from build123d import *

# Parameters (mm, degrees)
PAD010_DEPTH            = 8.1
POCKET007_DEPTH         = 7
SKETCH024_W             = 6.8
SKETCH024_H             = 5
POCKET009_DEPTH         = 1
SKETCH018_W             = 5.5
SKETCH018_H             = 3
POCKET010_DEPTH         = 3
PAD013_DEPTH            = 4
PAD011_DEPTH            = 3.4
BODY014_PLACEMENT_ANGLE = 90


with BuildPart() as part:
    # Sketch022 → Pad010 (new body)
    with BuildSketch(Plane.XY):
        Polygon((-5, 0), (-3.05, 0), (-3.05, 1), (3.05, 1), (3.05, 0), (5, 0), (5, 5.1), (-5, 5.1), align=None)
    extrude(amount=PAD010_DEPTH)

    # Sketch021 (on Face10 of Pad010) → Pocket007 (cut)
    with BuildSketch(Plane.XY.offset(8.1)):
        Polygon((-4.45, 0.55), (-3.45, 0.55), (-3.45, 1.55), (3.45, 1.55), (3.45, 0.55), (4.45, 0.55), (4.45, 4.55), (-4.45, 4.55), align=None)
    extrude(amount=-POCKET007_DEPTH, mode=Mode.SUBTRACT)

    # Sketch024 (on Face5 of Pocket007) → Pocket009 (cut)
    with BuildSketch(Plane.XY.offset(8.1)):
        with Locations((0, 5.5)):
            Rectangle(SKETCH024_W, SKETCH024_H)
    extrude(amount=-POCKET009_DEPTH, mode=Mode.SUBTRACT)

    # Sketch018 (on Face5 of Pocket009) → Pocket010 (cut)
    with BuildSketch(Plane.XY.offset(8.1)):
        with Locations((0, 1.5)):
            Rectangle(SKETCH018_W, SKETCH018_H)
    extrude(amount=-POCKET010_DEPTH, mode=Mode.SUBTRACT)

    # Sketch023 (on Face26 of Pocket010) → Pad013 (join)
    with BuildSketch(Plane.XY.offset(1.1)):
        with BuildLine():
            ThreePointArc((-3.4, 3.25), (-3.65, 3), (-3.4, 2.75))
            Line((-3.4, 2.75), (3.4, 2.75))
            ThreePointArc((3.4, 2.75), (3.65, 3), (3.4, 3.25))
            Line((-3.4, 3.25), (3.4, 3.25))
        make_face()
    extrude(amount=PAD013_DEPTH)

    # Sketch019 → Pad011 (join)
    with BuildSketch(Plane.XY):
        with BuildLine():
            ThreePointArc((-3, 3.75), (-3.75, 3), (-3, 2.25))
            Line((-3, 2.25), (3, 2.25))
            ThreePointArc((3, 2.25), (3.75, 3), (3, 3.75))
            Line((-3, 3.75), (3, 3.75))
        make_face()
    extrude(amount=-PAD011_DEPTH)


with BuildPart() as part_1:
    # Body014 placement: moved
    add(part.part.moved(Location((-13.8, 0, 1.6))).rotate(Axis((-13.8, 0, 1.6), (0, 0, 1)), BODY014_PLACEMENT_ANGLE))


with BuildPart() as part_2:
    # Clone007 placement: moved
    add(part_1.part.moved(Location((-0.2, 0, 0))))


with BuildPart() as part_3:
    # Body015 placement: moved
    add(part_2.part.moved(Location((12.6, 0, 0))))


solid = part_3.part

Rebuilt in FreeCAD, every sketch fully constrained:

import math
import FreeCAD as App
import Part
import Sketcher

doc = App.newDocument("Part")
body = doc.addObject("PartDesign::Body", "Body")

# Sketch on XY plane
sketch1 = body.newObject("Sketcher::SketchObject", "Sketch")
sketch1.AttachmentSupport = (doc.getObject("XY_Plane"), [""])
sketch1.MapMode = "FlatFace"
sketch1.addGeometry(Part.LineSegment(App.Vector(-5, 0, 0), App.Vector(-3.05, 0, 0)), False)
sketch1.addGeometry(Part.LineSegment(App.Vector(-3.05, 0, 0), App.Vector(-3.05, 1, 0)), False)
sketch1.addGeometry(Part.LineSegment(App.Vector(-3.05, 1, 0), App.Vector(3.05, 1, 0)), False)
sketch1.addGeometry(Part.LineSegment(App.Vector(3.05, 1, 0), App.Vector(3.05, 0, 0)), False)
sketch1.addGeometry(Part.LineSegment(App.Vector(3.05, 0, 0), App.Vector(5, 0, 0)), False)
sketch1.addGeometry(Part.LineSegment(App.Vector(5, 0, 0), App.Vector(5, 5.1, 0)), False)
sketch1.addGeometry(Part.LineSegment(App.Vector(5, 5.1, 0), App.Vector(-5, 5.1, 0)), False)
sketch1.addGeometry(Part.LineSegment(App.Vector(-5, 5.1, 0), App.Vector(-5, 0, 0)), False)
sketch1.addConstraint(Sketcher.Constraint("Coincident", 0, 2, 1, 1))
sketch1.addConstraint(Sketcher.Constraint("Coincident", 1, 2, 2, 1))
sketch1.addConstraint(Sketcher.Constraint("Coincident", 2, 2, 3, 1))
sketch1.addConstraint(Sketcher.Constraint("Coincident", 3, 2, 4, 1))
sketch1.addConstraint(Sketcher.Constraint("Coincident", 4, 2, 5, 1))
sketch1.addConstraint(Sketcher.Constraint("Coincident", 5, 2, 6, 1))
sketch1.addConstraint(Sketcher.Constraint("Coincident", 6, 2, 7, 1))
sketch1.addConstraint(Sketcher.Constraint("Coincident", 7, 2, 0, 1))
sketch1.addConstraint(Sketcher.Constraint("Horizontal", 0))
sketch1.addConstraint(Sketcher.Constraint("Vertical", 1))
sketch1.addConstraint(Sketcher.Constraint("Horizontal", 2))
sketch1.addConstraint(Sketcher.Constraint("Vertical", 3))
sketch1.addConstraint(Sketcher.Constraint("Horizontal", 4))
sketch1.addConstraint(Sketcher.Constraint("Vertical", 5))
sketch1.addConstraint(Sketcher.Constraint("Horizontal", 6))
sketch1.addConstraint(Sketcher.Constraint("Vertical", 7))
sketch1.addConstraint(Sketcher.Constraint("Symmetric", 0, 2, 3, 2, -1, 1))
sketch1.addConstraint(Sketcher.Constraint("Symmetric", 4, 2, 7, 2, -2))
sketch1.addConstraint(Sketcher.Constraint("DistanceX", 6, 2, 6, 1, 10.0))
sketch1.addConstraint(Sketcher.Constraint("DistanceY", 1, 1, 1, 2, 1.0))
sketch1.addConstraint(Sketcher.Constraint("DistanceX", 2, 1, 2, 2, 6.1))
sketch1.addConstraint(Sketcher.Constraint("DistanceY", 5, 1, 5, 2, 5.1))
pad1 = body.newObject("PartDesign::Pad", "Pad")
pad1.Profile = sketch1
pad1.Length = 8.1

# Sketch on XY plane
sketch2 = body.newObject("Sketcher::SketchObject", "Sketch001")
sketch2.AttachmentSupport = (doc.getObject("XY_Plane"), [""])
sketch2.MapMode = "FlatFace"
sketch2.AttachmentOffset = App.Placement(App.Vector(0, 0, 8.1), App.Rotation())
sketch2.addGeometry(Part.LineSegment(App.Vector(-4.45, 0.55, 0), App.Vector(-3.45, 0.55, 0)), False)
sketch2.addGeometry(Part.LineSegment(App.Vector(-3.45, 0.55, 0), App.Vector(-3.45, 1.55, 0)), False)
sketch2.addGeometry(Part.LineSegment(App.Vector(-3.45, 1.55, 0), App.Vector(3.45, 1.55, 0)), False)
sketch2.addGeometry(Part.LineSegment(App.Vector(3.45, 1.55, 0), App.Vector(3.45, 0.55, 0)), False)
sketch2.addGeometry(Part.LineSegment(App.Vector(3.45, 0.55, 0), App.Vector(4.45, 0.55, 0)), False)
sketch2.addGeometry(Part.LineSegment(App.Vector(4.45, 0.55, 0), App.Vector(4.45, 4.55, 0)), False)
sketch2.addGeometry(Part.LineSegment(App.Vector(4.45, 4.55, 0), App.Vector(-4.45, 4.55, 0)), False)
sketch2.addGeometry(Part.LineSegment(App.Vector(-4.45, 4.55, 0), App.Vector(-4.45, 0.55, 0)), False)
sketch2.addConstraint(Sketcher.Constraint("Coincident", 0, 2, 1, 1))
sketch2.addConstraint(Sketcher.Constraint("Coincident", 1, 2, 2, 1))
sketch2.addConstraint(Sketcher.Constraint("Coincident", 2, 2, 3, 1))
sketch2.addConstraint(Sketcher.Constraint("Coincident", 3, 2, 4, 1))
sketch2.addConstraint(Sketcher.Constraint("Coincident", 4, 2, 5, 1))
sketch2.addConstraint(Sketcher.Constraint("Coincident", 5, 2, 6, 1))
sketch2.addConstraint(Sketcher.Constraint("Coincident", 6, 2, 7, 1))
sketch2.addConstraint(Sketcher.Constraint("Coincident", 7, 2, 0, 1))
sketch2.addConstraint(Sketcher.Constraint("Horizontal", 0))
sketch2.addConstraint(Sketcher.Constraint("Vertical", 1))
sketch2.addConstraint(Sketcher.Constraint("Horizontal", 2))
sketch2.addConstraint(Sketcher.Constraint("Vertical", 3))
sketch2.addConstraint(Sketcher.Constraint("Horizontal", 4))
sketch2.addConstraint(Sketcher.Constraint("Vertical", 5))
sketch2.addConstraint(Sketcher.Constraint("Horizontal", 6))
sketch2.addConstraint(Sketcher.Constraint("Vertical", 7))
sketch2.addConstraint(Sketcher.Constraint("Symmetric", 0, 2, 3, 2, -2))
sketch2.addConstraint(Sketcher.Constraint("Equal", 0, 4))
sketch2.addConstraint(Sketcher.Constraint("Equal", 4, 1))
sketch2.addConstraint(Sketcher.Constraint("DistanceX", 0, 1, 0, 2, 1.0))
sketch2.addConstraint(Sketcher.Constraint("DistanceY", 5, 1, 5, 2, 4.0))
sketch2.addConstraint(Sketcher.Constraint("DistanceX", 2, 1, 2, 2, 6.9))
sketch2.addConstraint(Sketcher.Constraint("DistanceY", -1, 1, 0, 2, 0.55))
pocket1 = body.newObject("PartDesign::Pocket", "Pocket")
pocket1.Profile = sketch2
pocket1.Length = 7

# Sketch on XY plane
sketch3 = body.newObject("Sketcher::SketchObject", "Sketch002")
sketch3.AttachmentSupport = (doc.getObject("XY_Plane"), [""])
sketch3.MapMode = "FlatFace"
sketch3.AttachmentOffset = App.Placement(App.Vector(0, 0, 8.1), App.Rotation())
sketch3.addGeometry(Part.LineSegment(App.Vector(-3.4, 8, 0), App.Vector(-3.4, 3, 0)), False)
sketch3.addGeometry(Part.LineSegment(App.Vector(-3.4, 3, 0), App.Vector(3.4, 3, 0)), False)
sketch3.addGeometry(Part.LineSegment(App.Vector(3.4, 3, 0), App.Vector(3.4, 8, 0)), False)
sketch3.addGeometry(Part.LineSegment(App.Vector(3.4, 8, 0), App.Vector(-3.4, 8, 0)), False)
sketch3.addConstraint(Sketcher.Constraint("Coincident", 0, 2, 1, 1))
sketch3.addConstraint(Sketcher.Constraint("Coincident", 1, 2, 2, 1))
sketch3.addConstraint(Sketcher.Constraint("Coincident", 2, 2, 3, 1))
sketch3.addConstraint(Sketcher.Constraint("Coincident", 3, 2, 0, 1))
sketch3.addConstraint(Sketcher.Constraint("Vertical", 0))
sketch3.addConstraint(Sketcher.Constraint("Horizontal", 1))
sketch3.addConstraint(Sketcher.Constraint("Vertical", 2))
sketch3.addConstraint(Sketcher.Constraint("Horizontal", 3))
sketch3.addConstraint(Sketcher.Constraint("DistanceY", 0, 2, 0, 1, 5.0))
sketch3.addConstraint(Sketcher.Constraint("DistanceX", 1, 1, 1, 2, 6.8))
sketch3.addConstraint(Sketcher.Constraint("DistanceY", -1, 1, 0, 2, 3.0))
sketch3.addConstraint(Sketcher.Constraint("DistanceX", 0, 2, -1, 1, 3.4))
pocket2 = body.newObject("PartDesign::Pocket", "Pocket001")
pocket2.Profile = sketch3
pocket2.Length = 1

# Sketch on XY plane
sketch4 = body.newObject("Sketcher::SketchObject", "Sketch003")
sketch4.AttachmentSupport = (doc.getObject("XY_Plane"), [""])
sketch4.MapMode = "FlatFace"
sketch4.AttachmentOffset = App.Placement(App.Vector(0, 0, 8.1), App.Rotation())
sketch4.addGeometry(Part.LineSegment(App.Vector(-2.75, 3, 0), App.Vector(-2.75, 0, 0)), False)
sketch4.addGeometry(Part.LineSegment(App.Vector(-2.75, 0, 0), App.Vector(2.75, 0, 0)), False)
sketch4.addGeometry(Part.LineSegment(App.Vector(2.75, 0, 0), App.Vector(2.75, 3, 0)), False)
sketch4.addGeometry(Part.LineSegment(App.Vector(2.75, 3, 0), App.Vector(-2.75, 3, 0)), False)
sketch4.addConstraint(Sketcher.Constraint("Coincident", 0, 2, 1, 1))
sketch4.addConstraint(Sketcher.Constraint("Coincident", 1, 2, 2, 1))
sketch4.addConstraint(Sketcher.Constraint("Coincident", 2, 2, 3, 1))
sketch4.addConstraint(Sketcher.Constraint("Coincident", 3, 2, 0, 1))
sketch4.addConstraint(Sketcher.Constraint("Vertical", 0))
sketch4.addConstraint(Sketcher.Constraint("Horizontal", 1))
sketch4.addConstraint(Sketcher.Constraint("Vertical", 2))
sketch4.addConstraint(Sketcher.Constraint("Horizontal", 3))
sketch4.addConstraint(Sketcher.Constraint("Symmetric", 0, 2, 1, 2, -1, 1))
sketch4.addConstraint(Sketcher.Constraint("DistanceY", 0, 2, 0, 1, 3.0))
sketch4.addConstraint(Sketcher.Constraint("DistanceX", 1, 1, 1, 2, 5.5))
pocket3 = body.newObject("PartDesign::Pocket", "Pocket002")
pocket3.Profile = sketch4
pocket3.Length = 3

# Sketch on XY plane
sketch5 = body.newObject("Sketcher::SketchObject", "Sketch004")
sketch5.AttachmentSupport = (doc.getObject("XY_Plane"), [""])
sketch5.MapMode = "FlatFace"
sketch5.AttachmentOffset = App.Placement(App.Vector(0, 0, 1.1), App.Rotation())
sketch5.addGeometry(Part.ArcOfCircle(Part.Circle(App.Vector(-3.4, 3, 0), App.Vector(0, 0, 1), 0.25), math.radians(90), math.radians(270)), False)
sketch5.addGeometry(Part.LineSegment(App.Vector(-3.4, 2.75, 0), App.Vector(3.4, 2.75, 0)), False)
sketch5.addGeometry(Part.ArcOfCircle(Part.Circle(App.Vector(3.4, 3, 0), App.Vector(0, 0, 1), 0.25), math.radians(-90), math.radians(90)), False)
sketch5.addGeometry(Part.LineSegment(App.Vector(3.4, 3.25, 0), App.Vector(-3.4, 3.25, 0)), False)
sketch5.addConstraint(Sketcher.Constraint("Tangent", 0, 2, 1, 1))
sketch5.addConstraint(Sketcher.Constraint("Tangent", 1, 2, 2, 1))
sketch5.addConstraint(Sketcher.Constraint("Tangent", 2, 2, 3, 1))
sketch5.addConstraint(Sketcher.Constraint("Tangent", 3, 2, 0, 1))
sketch5.addConstraint(Sketcher.Constraint("Horizontal", 1))
sketch5.addConstraint(Sketcher.Constraint("Horizontal", 3))
sketch5.addConstraint(Sketcher.Constraint("Radius", 0, 0.25))
sketch5.addConstraint(Sketcher.Constraint("DistanceX", 1, 1, 1, 2, 6.8))
sketch5.addConstraint(Sketcher.Constraint("DistanceY", -1, 1, 0, 3, 3.0))
sketch5.addConstraint(Sketcher.Constraint("DistanceX", 0, 3, -1, 1, 3.4))
pad2 = body.newObject("PartDesign::Pad", "Pad001")
pad2.Profile = sketch5
pad2.Length = 4

# Sketch on XY plane
sketch6 = body.newObject("Sketcher::SketchObject", "Sketch005")
sketch6.AttachmentSupport = (doc.getObject("XY_Plane"), [""])
sketch6.MapMode = "FlatFace"
sketch6.addGeometry(Part.ArcOfCircle(Part.Circle(App.Vector(-3, 3, 0), App.Vector(0, 0, 1), 0.75), math.radians(90), math.radians(270)), False)
sketch6.addGeometry(Part.LineSegment(App.Vector(-3, 2.25, 0), App.Vector(3, 2.25, 0)), False)
sketch6.addGeometry(Part.ArcOfCircle(Part.Circle(App.Vector(3, 3, 0), App.Vector(0, 0, 1), 0.75), math.radians(-90), math.radians(90)), False)
sketch6.addGeometry(Part.LineSegment(App.Vector(3, 3.75, 0), App.Vector(-3, 3.75, 0)), False)
sketch6.addConstraint(Sketcher.Constraint("Tangent", 0, 2, 1, 1))
sketch6.addConstraint(Sketcher.Constraint("Tangent", 1, 2, 2, 1))
sketch6.addConstraint(Sketcher.Constraint("Tangent", 2, 2, 3, 1))
sketch6.addConstraint(Sketcher.Constraint("Tangent", 3, 2, 0, 1))
sketch6.addConstraint(Sketcher.Constraint("Horizontal", 1))
sketch6.addConstraint(Sketcher.Constraint("Horizontal", 3))
sketch6.addConstraint(Sketcher.Constraint("DistanceX", 1, 1, 1, 2, 6.0))
sketch6.addConstraint(Sketcher.Constraint("Radius", 0, 0.75))
sketch6.addConstraint(Sketcher.Constraint("DistanceX", 0, 3, -1, 1, 3.0))
sketch6.addConstraint(Sketcher.Constraint("DistanceY", -1, 1, 0, 3, 3.0))
pad3 = body.newObject("PartDesign::Pad", "Pad002")
pad3.Profile = sketch6
pad3.Length = 3.4
pad3.Reversed = True
body2 = doc.addObject("PartDesign::Body", "Body001")
doc.recompute()

body.Placement = App.Placement(App.Vector(-13.8, 0, 1.6), App.Rotation(App.Vector(0, 0, 1), 90))
boolean = body2.newObject("PartDesign::Boolean", "Boolean")
boolean.Type = "Fuse"
boolean.addObjects([body])
body3 = doc.addObject("PartDesign::Body", "Body002")
doc.recompute()

body2.Placement = App.Placement(App.Vector(-0.2, 0, 0), App.Rotation(App.Vector(0, 0, 1), 0))
boolean2 = body3.newObject("PartDesign::Boolean", "Boolean001")
boolean2.Type = "Fuse"
boolean2.addObjects([body2])
body4 = doc.addObject("PartDesign::Body", "Body003")
doc.recompute()

body3.Placement = App.Placement(App.Vector(12.6, 0, 0), App.Rotation(App.Vector(0, 0, 1), 0))
boolean3 = body4.newObject("PartDesign::Boolean", "Boolean002")
boolean3.Type = "Fuse"
boolean3.addObjects([body3])

doc.recompute()
